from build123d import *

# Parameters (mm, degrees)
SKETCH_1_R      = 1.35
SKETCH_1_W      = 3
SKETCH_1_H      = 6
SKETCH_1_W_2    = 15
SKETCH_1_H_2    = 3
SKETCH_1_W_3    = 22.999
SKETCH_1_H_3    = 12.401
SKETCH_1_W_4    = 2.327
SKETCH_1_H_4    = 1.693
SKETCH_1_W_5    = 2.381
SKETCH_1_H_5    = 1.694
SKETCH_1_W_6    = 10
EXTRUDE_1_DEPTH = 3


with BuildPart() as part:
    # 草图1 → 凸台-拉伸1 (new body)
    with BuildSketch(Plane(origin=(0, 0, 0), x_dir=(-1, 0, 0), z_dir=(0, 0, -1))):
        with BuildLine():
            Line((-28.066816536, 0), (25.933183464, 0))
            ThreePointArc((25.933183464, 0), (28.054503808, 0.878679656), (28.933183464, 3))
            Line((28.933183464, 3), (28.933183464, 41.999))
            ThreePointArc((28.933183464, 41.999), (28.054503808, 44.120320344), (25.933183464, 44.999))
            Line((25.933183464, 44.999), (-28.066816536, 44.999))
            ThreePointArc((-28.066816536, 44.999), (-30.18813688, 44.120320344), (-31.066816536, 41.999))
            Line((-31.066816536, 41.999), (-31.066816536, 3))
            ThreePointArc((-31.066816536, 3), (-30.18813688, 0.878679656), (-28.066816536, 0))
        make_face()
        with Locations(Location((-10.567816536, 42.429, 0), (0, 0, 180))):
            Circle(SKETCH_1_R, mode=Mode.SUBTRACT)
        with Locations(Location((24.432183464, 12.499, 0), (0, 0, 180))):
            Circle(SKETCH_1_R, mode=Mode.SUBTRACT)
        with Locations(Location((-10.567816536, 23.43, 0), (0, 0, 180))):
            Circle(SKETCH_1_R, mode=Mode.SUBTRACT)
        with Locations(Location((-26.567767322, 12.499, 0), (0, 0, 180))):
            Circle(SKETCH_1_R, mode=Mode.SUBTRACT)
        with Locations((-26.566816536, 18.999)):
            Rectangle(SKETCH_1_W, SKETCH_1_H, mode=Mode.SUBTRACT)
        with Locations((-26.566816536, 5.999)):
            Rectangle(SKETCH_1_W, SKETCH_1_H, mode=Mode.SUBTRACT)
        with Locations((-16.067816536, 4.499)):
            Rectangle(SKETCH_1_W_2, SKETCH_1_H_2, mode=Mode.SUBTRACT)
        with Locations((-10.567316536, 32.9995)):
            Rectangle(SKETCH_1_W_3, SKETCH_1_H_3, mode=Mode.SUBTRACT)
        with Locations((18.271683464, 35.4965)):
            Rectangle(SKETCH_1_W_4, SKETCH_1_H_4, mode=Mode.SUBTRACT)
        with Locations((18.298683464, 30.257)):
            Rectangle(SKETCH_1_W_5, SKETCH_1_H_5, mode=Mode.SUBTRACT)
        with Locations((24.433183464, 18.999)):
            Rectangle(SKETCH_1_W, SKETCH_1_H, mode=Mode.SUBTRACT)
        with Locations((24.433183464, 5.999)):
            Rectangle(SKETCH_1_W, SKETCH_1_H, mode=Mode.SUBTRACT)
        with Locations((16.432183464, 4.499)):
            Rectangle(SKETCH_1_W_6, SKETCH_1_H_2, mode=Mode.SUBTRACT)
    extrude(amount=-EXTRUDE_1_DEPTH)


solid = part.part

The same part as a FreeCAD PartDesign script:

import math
import FreeCAD as App
import Part
import Sketcher

V = App.Vector

doc = App.newDocument("Part")
body = doc.addObject("PartDesign::Body", "Body")

# Sketch on XY plane
sketch1 = body.newObject("Sketcher::SketchObject", "Sketch")
sketch1.AttachmentSupport = (doc.getObject("XY_Plane"), [""])
sketch1.MapMode = "FlatFace"
sketch1.addGeometry(Part.LineSegment(V(28.1, 0, 0), V(-25.9, 0, 0)), False)
sketch1.addGeometry(Part.ArcOfCircle(Part.Circle(V(-25.9, 3, 0), V(0, 0, 1), 3), math.radians(180), math.radians(270)), False)
sketch1.addGeometry(Part.LineSegment(V(-28.9, 3, 0), V(-28.9, 42, 0)), False)
sketch1.addGeometry(Part.ArcOfCircle(Part.Circle(V(-25.9, 42, 0), V(0, 0, 1), 3), math.radians(90), math.radians(180)), False)
sketch1.addGeometry(Part.LineSegment(V(-25.9, 45, 0), V(28.1, 45, 0)), False)
sketch1.addGeometry(Part.ArcOfCircle(Part.Circle(V(28.1, 42, 0), V(0, 0, 1), 3), math.radians(0), math.radians(90)), False)
sketch1.addGeometry(Part.LineSegment(V(31.1, 42, 0), V(31.1, 3, 0)), False)
sketch1.addGeometry(Part.ArcOfCircle(Part.Circle(V(28.1, 3, 0), V(0, 0, 1), 3), math.radians(-90), math.radians(0)), False)
sketch1.addGeometry(Part.LineSegment(V(25.1, 3, 0), V(28.1, 3, 0)), False)
sketch1.addGeometry(Part.LineSegment(V(28.1, 3, 0), V(28.1, 9, 0)), False)
sketch1.addGeometry(Part.LineSegment(V(28.1, 9, 0), V(25.1, 9, 0)), False)
sketch1.addGeometry(Part.LineSegment(V(25.1, 9, 0), V(25.1, 3, 0)), False)
sketch1.addGeometry(Part.LineSegment(V(8.6, 3, 0), V(23.6, 3, 0)), False)
sketch1.addGeometry(Part.LineSegment(V(23.6, 3, 0), V(23.6, 6, 0)), False)
sketch1.addGeometry(Part.LineSegment(V(23.6, 6, 0), V(8.6, 6, 0)), False)
sketch1.addGeometry(Part.LineSegment(V(8.6, 6, 0), V(8.6, 3, 0)), False)
sketch1.addGeometry(Part.Circle(V(26.6, 12.5, 0), V(0, 0, 1), 1.4), False)
sketch1.addGeometry(Part.LineSegment(V(25.1, 16, 0), V(28.1, 16, 0)), False)
sketch1.addGeometry(Part.LineSegment(V(28.1, 16, 0), V(28.1, 22, 0)), False)
sketch1.addGeometry(Part.LineSegment(V(28.1, 22, 0), V(25.1, 22, 0)), False)
sketch1.addGeometry(Part.LineSegment(V(25.1, 22, 0), V(25.1, 16, 0)), False)
sketch1.addGeometry(Part.LineSegment(V(-21.4, 3, 0), V(-11.4, 3, 0)), False)
sketch1.addGeometry(Part.LineSegment(V(-11.4, 3, 0), V(-11.4, 6, 0)), False)
sketch1.addGeometry(Part.LineSegment(V(-11.4, 6, 0), V(-21.4, 6, 0)), False)
sketch1.addGeometry(Part.LineSegment(V(-21.4, 6, 0), V(-21.4, 3, 0)), False)
sketch1.addGeometry(Part.LineSegment(V(-25.9, 3, 0), V(-22.9, 3, 0)), False)
sketch1.addGeometry(Part.LineSegment(V(-22.9, 3, 0), V(-22.9, 9, 0)), False)
sketch1.addGeometry(Part.LineSegment(V(-22.9, 9, 0), V(-25.9, 9, 0)), False)
sketch1.addGeometry(Part.LineSegment(V(-25.9, 9, 0), V(-25.9, 3, 0)), False)
sketch1.addGeometry(Part.Circle(V(-24.4, 12.5, 0), V(0, 0, 1), 1.4), False)
sketch1.addGeometry(Part.LineSegment(V(-25.9, 16, 0), V(-22.9, 16, 0)), False)
sketch1.addGeometry(Part.LineSegment(V(-22.9, 16, 0), V(-22.9, 22, 0)), False)
sketch1.addGeometry(Part.LineSegment(V(-22.9, 22, 0), V(-25.9, 22, 0)), False)
sketch1.addGeometry(Part.LineSegment(V(-25.9, 22, 0), V(-25.9, 16, 0)), False)
sketch1.addGeometry(Part.Circle(V(10.6, 23.4, 0), V(0, 0, 1), 1.4), False)
sketch1.addGeometry(Part.LineSegment(V(-0.9, 26.8, 0), V(22.1, 26.8, 0)), False)
sketch1.addGeometry(Part.LineSegment(V(22.1, 26.8, 0), V(22.1, 39.2, 0)), False)
sketch1.addGeometry(Part.LineSegment(V(22.1, 39.2, 0), V(-0.9, 39.2, 0)), False)
sketch1.addGeometry(Part.LineSegment(V(-0.9, 39.2, 0), V(-0.9, 26.8, 0)), False)
sketch1.addGeometry(Part.Circle(V(10.6, 42.4, 0), V(0, 0, 1), 1.4), False)
sketch1.addGeometry(Part.LineSegment(V(-19.5, 29.4, 0), V(-17.1, 29.4, 0)), False)
sketch1.addGeometry(Part.LineSegment(V(-17.1, 29.4, 0), V(-17.1, 31.1, 0)), False)
sketch1.addGeometry(Part.LineSegment(V(-17.1, 31.1, 0), V(-19.5, 31.1, 0)), False)
sketch1.addGeometry(Part.LineSegment(V(-19.5, 31.1, 0), V(-19.5, 29.4, 0)), False)
sketch1.addGeometry(Part.LineSegment(V(-19.4, 34.6, 0), V(-17.1, 34.6, 0)), False)
sketch1.addGeometry(Part.LineSegment(V(-17.1, 34.6, 0), V(-17.1, 36.3, 0)), False)
sketch1.addGeometry(Part.LineSegment(V(-17.1, 36.3, 0), V(-19.4, 36.3, 0)), False)
sketch1.addGeometry(Part.LineSegment(V(-19.4, 36.3, 0), V(-19.4, 34.6, 0)), False)
sketch1.addConstraint(Sketcher.Constraint("Tangent", 0, 2, 1, 2))
sketch1.addConstraint(Sketcher.Constraint("Tangent", 1, 1, 2, 1))
sketch1.addConstraint(Sketcher.Constraint("Tangent", 2, 2, 3, 2))
sketch1.addConstraint(Sketcher.Constraint("Tangent", 3, 1, 4, 1))
sketch1.addConstraint(Sketcher.Constraint("Tangent", 4, 2, 5, 2))
sketch1.addConstraint(Sketcher.Constraint("Tangent", 5, 1, 6, 1))
sketch1.addConstraint(Sketcher.Constraint("Tangent", 6, 2, 7, 2))
sketch1.addConstraint(Sketcher.Constraint("Tangent", 7, 1, 0, 1))
sketch1.addConstraint(Sketcher.Constraint("Coincident", 8, 2, 9, 1))
sketch1.addConstraint(Sketcher.Constraint("Coincident", 9, 2, 10, 1))
sketch1.addConstraint(Sketcher.Constraint("Coincident", 10, 2, 11, 1))
sketch1.addConstraint(Sketcher.Constraint("Coincident", 11, 2, 8, 1))
sketch1.addConstraint(Sketcher.Constraint("Coincident", 12, 2, 13, 1))
sketch1.addConstraint(Sketcher.Constraint("Coincident", 13, 2, 14, 1))
sketch1.addConstraint(Sketcher.Constraint("Coincident", 14, 2, 15, 1))
sketch1.addConstraint(Sketcher.Constraint("Coincident", 15, 2, 12, 1))
sketch1.addConstraint(Sketcher.Constraint("Coincident", 17, 2, 18, 1))
sketch1.addConstraint(Sketcher.Constraint("Coincident", 18, 2, 19, 1))
sketch1.addConstraint(Sketcher.Constraint("Coincident", 19, 2, 20, 1))
sketch1.addConstraint(Sketcher.Constraint("Coincident", 20, 2, 17, 1))
sketch1.addConstraint(Sketcher.Constraint("Coincident", 21, 2, 22, 1))
sketch1.addConstraint(Sketcher.Constraint("Coincident", 22, 2, 23, 1))
sketch1.addConstraint(Sketcher.Constraint("Coincident", 23, 2, 24, 1))
sketch1.addConstraint(Sketcher.Constraint("Coincident", 24, 2, 21, 1))
sketch1.addConstraint(Sketcher.Constraint("Coincident", 25, 2, 26, 1))
sketch1.addConstraint(Sketcher.Constraint("Coincident", 26, 2, 27, 1))
sketch1.addConstraint(Sketcher.Constraint("Coincident", 27, 2, 28, 1))
sketch1.addConstraint(Sketcher.Constraint("Coincident", 28, 2, 25, 1))
sketch1.addConstraint(Sketcher.Constraint("Coincident", 30, 2, 31, 1))
sketch1.addConstraint(Sketcher.Constraint("Coincident", 31, 2, 32, 1))
sketch1.addConstraint(Sketcher.Constraint("Coincident", 32, 2, 33, 1))
sketch1.addConstraint(Sketcher.Constraint("Coincident", 33, 2, 30, 1))
sketch1.addConstraint(Sketcher.Constraint("Coincident", 35, 2, 36, 1))
sketch1.addConstraint(Sketcher.Constraint("Coincident", 36, 2, 37, 1))
sketch1.addConstraint(Sketcher.Constraint("Coincident", 37, 2, 38, 1))
sketch1.addConstraint(Sketcher.Constraint("Coincident", 38, 2, 35, 1))
sketch1.addConstraint(Sketcher.Constraint("Coincident", 40, 2, 41, 1))
sketch1.addConstraint(Sketcher.Constraint("Coincident", 41, 2, 42, 1))
sketch1.addConstraint(Sketcher.Constraint("Coincident", 42, 2, 43, 1))
sketch1.addConstraint(Sketcher.Constraint("Coincident", 43, 2, 40, 1))
sketch1.addConstraint(Sketcher.Constraint("Coincident", 44, 2, 45, 1))
sketch1.addConstraint(Sketcher.Constraint("Coincident", 45, 2, 46, 1))
sketch1.addConstraint(Sketcher.Constraint("Coincident", 46, 2, 47, 1))
sketch1.addConstraint(Sketcher.Constraint("Coincident", 47, 2, 44, 1))
sketch1.addConstraint(Sketcher.Constraint("Horizontal", 0))
sketch1.addConstraint(Sketcher.Constraint("Vertical", 2))
sketch1.addConstraint(Sketcher.Constraint("Horizontal", 4))
sketch1.addConstraint(Sketcher.Constraint("Vertical", 6))
sketch1.addConstraint(Sketcher.Constraint("Horizontal", 8))
sketch1.addConstraint(Sketcher.Constraint("Vertical", 9))
sketch1.addConstraint(Sketcher.Constraint("Horizontal", 10))
sketch1.addConstraint(Sketcher.Constraint("Vertical", 11))
sketch1.addConstraint(Sketcher.Constraint("Horizontal", 12))
sketch1.addConstraint(Sketcher.Constraint("Vertical", 13))
sketch1.addConstraint(Sketcher.Constraint("Horizontal", 14))
sketch1.addConstraint(Sketcher.Constraint("Vertical", 15))
sketch1.addConstraint(Sketcher.Constraint("Horizontal", 17))
sketch1.addConstraint(Sketcher.Constraint("Vertical", 18))
sketch1.addConstraint(Sketcher.Constraint("Horizontal", 19))
sketch1.addConstraint(Sketcher.Constraint("Vertical", 20))
sketch1.addConstraint(Sketcher.Constraint("Horizontal", 21))
sketch1.addConstraint(Sketcher.Constraint("Vertical", 22))
sketch1.addConstraint(Sketcher.Constraint("Horizontal", 23))
sketch1.addConstraint(Sketcher.Constraint("Vertical", 24))
sketch1.addConstraint(Sketcher.Constraint("Horizontal", 25))
sketch1.addConstraint(Sketcher.Constraint("Vertical", 26))
sketch1.addConstraint(Sketcher.Constraint("Horizontal", 27))
sketch1.addConstraint(Sketcher.Constraint("Vertical", 28))
sketch1.addConstraint(Sketcher.Constraint("Horizontal", 30))
sketch1.addConstraint(Sketcher.Constraint("Vertical", 31))
sketch1.addConstraint(Sketcher.Constraint("Horizontal", 32))
sketch1.addConstraint(Sketcher.Constraint("Vertical", 33))
sketch1.addConstraint(Sketcher.Constraint("Horizontal", 35))
sketch1.addConstraint(Sketcher.Constraint("Vertical", 36))
sketch1.addConstraint(Sketcher.Constraint("Horizontal", 37))
sketch1.addConstraint(Sketcher.Constraint("Vertical", 38))
sketch1.addConstraint(Sketcher.Constraint("Horizontal", 40))
sketch1.addConstraint(Sketcher.Constraint("Vertical", 41))
sketch1.addConstraint(Sketcher.Constraint("Horizontal", 42))
sketch1.addConstraint(Sketcher.Constraint("Vertical", 43))
sketch1.addConstraint(Sketcher.Constraint("Horizontal", 44))
sketch1.addConstraint(Sketcher.Constraint("Vertical", 45))
sketch1.addConstraint(Sketcher.Constraint("Horizontal", 46))
sketch1.addConstraint(Sketcher.Constraint("Vertical", 47))
sketch1.addConstraint(Sketcher.Constraint("Equal", 1, 3))
sketch1.addConstraint(Sketcher.Constraint("Equal", 3, 5))
sketch1.addConstraint(Sketcher.Constraint("Equal", 5, 7))
sketch1.addConstraint(Sketcher.Constraint("Equal", 16, 29))
sketch1.addConstraint(Sketcher.Constraint("Equal", 29, 34))
sketch1.addConstraint(Sketcher.Constraint("Equal", 34, 39))
sketch1.addConstraint(Sketcher.Constraint("PointOnObject", 0, 2, -1))
sketch1.addConstraint(Sketcher.Constraint("Horizontal", 16, 3, 29, 3))
sketch1.addConstraint(Sketcher.Constraint("Horizontal", 11, 2, 12, 2))
sketch1.addConstraint(Sketcher.Constraint("Horizontal", 15, 2, 21, 2))
sketch1.addConstraint(Sketcher.Constraint("Horizontal", 14, 2, 22, 2))
sketch1.addConstraint(Sketcher.Constraint("Horizontal", 24, 2, 25, 2))
sketch1.addConstraint(Sketcher.Constraint("Horizontal", 10, 2, 26, 2))
sketch1.addConstraint(Sketcher.Constraint("Horizontal", 20, 2, 30, 2))
sketch1.addConstraint(Sketcher.Constraint("Horizontal", 19, 2, 31, 2))
sketch1.addConstraint(Sketcher.Constraint("Vertical", 34, 3, 39, 3))
sketch1.addConstraint(Sketcher.Constraint("Vertical", 7, 1, 8, 2))
sketch1.addConstraint(Sketcher.Constraint("Vertical", 9, 2, 17, 2))
sketch1.addConstraint(Sketcher.Constraint("Vertical", 11, 2, 19, 2))
sketch1.addConstraint(Sketcher.Constraint("Vertical", 3, 1, 27, 2))
sketch1.addConstraint(Sketcher.Constraint("Vertical", 26, 2, 30, 2))
sketch1.addConstraint(Sketcher.Constraint("Vertical", 28, 2, 32, 2))
sketch1.addConstraint(Sketcher.Constraint("Vertical", 41, 2, 44, 2))
sketch1.addConstraint(Sketcher.Constraint("Equal", 19, 25))
sketch1.addConstraint(Sketcher.Constraint("Equal", 32, 13))
sketch1.addConstraint(Sketcher.Constraint("Equal", 11, 18))
sketch1.addConstraint(Sketcher.Constraint("Radius", 1, 3.0))
sketch1.addConstraint(Sketcher.Constraint("Diameter", 16, 2.7))
sketch1.addConstraint(Sketcher.Constraint("DistanceX", 0, 2, 0, 1, 54.0))
sketch1.addConstraint(Sketcher.Constraint("DistanceX", 8, 1, 8, 2, 3.0))
sketch1.addConstraint(Sketcher.Constraint("DistanceX", 12, 1, 12, 2, 15.0))
sketch1.addConstraint(Sketcher.Constraint("DistanceX", 21, 1, 21, 2, 10.0))
sketch1.addConstraint(Sketcher.Constraint("DistanceY", 9, 1, 9, 2, 6.0))
sketch1.addConstraint(Sketcher.Constraint("DistanceX", 29, 3, 34, 3, 35.0))
sketch1.addConstraint(Sketcher.Constraint("DistanceX", 14, 2, 34, 3, 2.0))
sketch1.addConstraint(Sketcher.Constraint("DistanceY", 9, 2, 17, 2, 7.0))
sketch1.addConstraint(Sketcher.Constraint("DistanceX", 29, 3, 21, 2, 13.0))
sketch1.addConstraint(Sketcher.Constraint("DistanceX", 35, 2, 19, 2, 3.0))
sketch1.addConstraint(Sketcher.Constraint("DistanceY", -1, 1, 36, 2, 39.2))
sketch1.addConstraint(Sketcher.Constraint("DistanceY", 16, 3, 5, 3, 29.5))
sketch1.addConstraint(Sketcher.Constraint("DistanceY", 8, 2, 16, 3, 9.5))
sketch1.addConstraint(Sketcher.Constraint("DistanceY", 19, 2, 35, 2, 4.8))
sketch1.addConstraint(Sketcher.Constraint("DistanceX", 37, 2, 39, 3, 11.5))
sketch1.addConstraint(Sketcher.Constraint("DistanceX", 35, 1, 35, 2, 22.999))
sketch1.addConstraint(Sketcher.Constraint("DistanceX", 40, 1, 40, 2, 2.381))
sketch1.addConstraint(Sketcher.Constraint("DistanceX", 44, 1, 44, 2, 2.327))
sketch1.addConstraint(Sketcher.Constraint("DistanceY", 2, 1, 2, 2, 38.999))
sketch1.addConstraint(Sketcher.Constraint("DistanceY", 41, 1, 41, 2, 1.694))
sketch1.addConstraint(Sketcher.Constraint("DistanceY", 45, 1, 45, 2, 1.693))
sketch1.addConstraint(Sketcher.Constraint("DistanceY", -1, 1, 34, 3, 23.43))
sketch1.addConstraint(Sketcher.Constraint("DistanceY", -1, 1, 40, 2, 29.41))
sketch1.addConstraint(Sketcher.Constraint("DistanceY", -1, 1, 44, 2, 34.65))
sketch1.addConstraint(Sketcher.Constraint("DistanceY", 5, 3, 39, 3, 0.43))
sketch1.addConstraint(Sketcher.Constraint("DistanceX", 31, 2, 40, 2, 5.825))
sketch1.addConstraint(Sketcher.Constraint("DistanceX", 16, 3, 7, 3, 1.499049))
sketch1.addConstraint(Sketcher.Constraint("DistanceX", 1, 3, -1, 1, 25.933183))
pad1 = body.newObject("PartDesign::Pad", "Pad")
pad1.Profile = sketch1
pad1.Length = 3

doc.recompute()
